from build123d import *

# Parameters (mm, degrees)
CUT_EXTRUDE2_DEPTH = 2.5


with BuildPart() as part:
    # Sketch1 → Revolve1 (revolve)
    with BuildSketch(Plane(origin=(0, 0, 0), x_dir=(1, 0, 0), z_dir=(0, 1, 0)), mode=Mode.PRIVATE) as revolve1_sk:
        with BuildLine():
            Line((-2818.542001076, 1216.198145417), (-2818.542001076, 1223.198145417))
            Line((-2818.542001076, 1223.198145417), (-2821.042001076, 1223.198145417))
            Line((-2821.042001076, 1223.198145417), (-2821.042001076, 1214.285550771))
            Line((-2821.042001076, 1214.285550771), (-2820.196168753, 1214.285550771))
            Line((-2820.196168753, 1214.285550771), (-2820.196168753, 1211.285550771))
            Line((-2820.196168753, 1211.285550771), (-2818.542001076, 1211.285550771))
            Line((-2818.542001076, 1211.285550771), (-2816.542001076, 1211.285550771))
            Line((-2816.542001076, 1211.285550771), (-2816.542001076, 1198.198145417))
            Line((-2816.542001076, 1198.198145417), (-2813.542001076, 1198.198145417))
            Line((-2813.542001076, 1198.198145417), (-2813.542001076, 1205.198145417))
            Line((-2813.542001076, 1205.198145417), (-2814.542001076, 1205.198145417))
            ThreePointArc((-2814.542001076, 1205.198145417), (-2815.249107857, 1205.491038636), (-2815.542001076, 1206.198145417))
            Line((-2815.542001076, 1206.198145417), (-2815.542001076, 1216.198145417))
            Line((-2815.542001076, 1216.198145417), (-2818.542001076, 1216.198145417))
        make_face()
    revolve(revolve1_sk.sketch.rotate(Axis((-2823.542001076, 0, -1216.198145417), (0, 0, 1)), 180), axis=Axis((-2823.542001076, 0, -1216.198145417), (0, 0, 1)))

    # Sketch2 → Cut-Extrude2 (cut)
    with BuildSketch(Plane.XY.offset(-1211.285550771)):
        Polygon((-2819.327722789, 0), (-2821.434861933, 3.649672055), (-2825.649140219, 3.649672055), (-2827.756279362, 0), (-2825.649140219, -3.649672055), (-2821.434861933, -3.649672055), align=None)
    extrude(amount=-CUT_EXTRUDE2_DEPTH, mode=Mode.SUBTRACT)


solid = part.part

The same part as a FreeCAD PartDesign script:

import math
import FreeCAD as App
import Part
import Sketcher
Q = App.Units.Quantity

doc = App.newDocument("Part")
params = doc.addObject("Spreadsheet::Sheet", "Params")
for row, (alias, value) in enumerate([
    ("sketch1_radius", "1 mm"),
    ("sketch1_width", "3 mm"),
    ("sketch1_width2", "1 mm"),
    ("sketch1_height", "7 mm"),
    ("sketch1_height2", "10 mm"),
    ("revolution_angle", "360 deg"),
    ("pocket1_length", "2.5 mm"),
], start=1):
    params.set(f"A{row}", alias)
    params.set(f"B{row}", "=" + value)
    params.setAlias(f"B{row}", alias)

body = doc.addObject("PartDesign::Body", "Body")

sketch1 = doc.addObject("Sketcher::SketchObject", "Sketch")
body.addObject(sketch1)
sketch1.AttachmentSupport = (doc.XZ_Plane, [""])
sketch1.MapMode = "FlatFace"
sketch1.addGeometry([
    Part.LineSegment(App.Vector(-2818.5, -1216.2, 0), App.Vector(-2818.5, -1223.2, 0)),
    Part.LineSegment(App.Vector(-2818.5, -1223.2, 0), App.Vector(-2821, -1223.2, 0)),
    Part.LineSegment(App.Vector(-2821, -1223.2, 0), App.Vector(-2821, -1214.3, 0)),
    Part.LineSegment(App.Vector(-2821, -1214.3, 0), App.Vector(-2820.2, -1214.3, 0)),
    Part.LineSegment(App.Vector(-2820.2, -1214.3, 0), App.Vector(-2820.2, -1211.3, 0)),
    Part.LineSegment(App.Vector(-2820.2, -1211.3, 0), App.Vector(-2816.5, -1211.3, 0)),
    Part.LineSegment(App.Vector(-2816.5, -1211.3, 0), App.Vector(-2816.5, -1198.2, 0)),
    Part.LineSegment(App.Vector(-2816.5, -1198.2, 0), App.Vector(-2813.5, -1198.2, 0)),
    Part.LineSegment(App.Vector(-2813.5, -1198.2, 0), App.Vector(-2813.5, -1205.2, 0)),
    Part.LineSegment(App.Vector(-2813.5, -1205.2, 0), App.Vector(-2814.5, -1205.2, 0)),
    Part.ArcOfCircle(Part.Circle(App.Vector(-2814.5, -1206.2, 0), App.Vector(0, 0, 1), 1), math.radians(90), math.radians(180)),
    Part.LineSegment(App.Vector(-2815.5, -1206.2, 0), App.Vector(-2815.5, -1216.2, 0)),
    Part.LineSegment(App.Vector(-2815.5, -1216.2, 0), App.Vector(-2818.5, -1216.2, 0)),
], False)
sketch1.addGeometry(Part.LineSegment(App.Vector(-2823.5, -1223.2, 0), App.Vector(-2823.5, -1198.2, 0)), True)
sketch1.addConstraint([
    Sketcher.Constraint("Coincident", 0, 2, 1, 1),
    Sketcher.Constraint("Coincident", 1, 2, 2, 1),
    Sketcher.Constraint("Coincident", 2, 2, 3, 1),
    Sketcher.Constraint("Coincident", 3, 2, 4, 1),
    Sketcher.Constraint("Coincident", 4, 2, 5, 1),
    Sketcher.Constraint("Coincident", 5, 2, 6, 1),
    Sketcher.Constraint("Coincident", 6, 2, 7, 1),
    Sketcher.Constraint("Coincident", 7, 2, 8, 1),
    Sketcher.Constraint("Coincident", 8, 2, 9, 1),
    Sketcher.Constraint("Tangent", 9, 2, 10, 1),
    Sketcher.Constraint("Tangent", 10, 2, 11, 1),
    Sketcher.Constraint("Coincident", 11, 2, 12, 1),
    Sketcher.Constraint("Coincident", 12, 2, 0, 1),
    Sketcher.Constraint("Vertical", 0),
    Sketcher.Constraint("Horizontal", 1),
    Sketcher.Constraint("Vertical", 2),
    Sketcher.Constraint("Horizontal", 3),
    Sketcher.Constraint("Vertical", 4),
    Sketcher.Constraint("Horizontal", 5),
    Sketcher.Constraint("Vertical", 6),
    Sketcher.Constraint("Horizontal", 7),
    Sketcher.Constraint("Vertical", 8),
    Sketcher.Constraint("Horizontal", 9),
    Sketcher.Constraint("Vertical", 11),
    Sketcher.Constraint("Horizontal", 12),
    Sketcher.Constraint("Vertical", 13),
    Sketcher.Constraint("Horizontal", 1, 2, 13, 1),
    Sketcher.Constraint("Horizontal", 7, 2, 13, 2),
    Sketcher.Constraint("Equal", 7, 12),
    Sketcher.Constraint("Equal", 12, 4),
    Sketcher.Constraint("Equal", 0, 8),
    Sketcher.Constraint("Radius", 10, 1.0),
    Sketcher.Constraint("DistanceX", 7, 1, 7, 2, 3.0),
    Sketcher.Constraint("DistanceX", 9, 2, 9, 1, 1.0),
    Sketcher.Constraint("DistanceY", 0, 2, 0, 1, 7.0),
    Sketcher.Constraint("DistanceY", 11, 2, 11, 1, 10.0),
    Sketcher.Constraint("DistanceX", 1, 2, 1, 1, 2.5),
    Sketcher.Constraint("DistanceX", 13, 1, 0, 2, 5.0),
    Sketcher.Constraint("DistanceX", 10, 3, -1, 1, 2814.542001),
    Sketcher.Constraint("DistanceX", 3, 1, 3, 2, 0.845832),
    Sketcher.Constraint("DistanceY", 2, 1, 2, 2, 8.912595),
    Sketcher.Constraint("DistanceY", 2, 2, -1, 1, 1214.285551),
])
sketch1.setExpression("Constraints[31]", "Params.sketch1_radius")
sketch1.setExpression("Constraints[32]", "Params.sketch1_width")
sketch1.setExpression("Constraints[33]", "Params.sketch1_width2")
sketch1.setExpression("Constraints[34]", "Params.sketch1_height")
sketch1.setExpression("Constraints[35]", "Params.sketch1_height2")
revolution = doc.addObject("PartDesign::Revolution", "Revolution")
body.addObject(revolution)
revolution.Profile = sketch1
revolution.ReferenceAxis = (sketch1, ["Axis0"])
revolution.setExpression("Angle", "Params.revolution_angle")

sketch2 = doc.addObject("Sketcher::SketchObject", "Sketch001")
body.addObject(sketch2)
sketch2.AttachmentSupport = (doc.XY_Plane, [""])
sketch2.MapMode = "FlatFace"
sketch2.AttachmentOffset = App.Placement(App.Vector(0, 0, -1211.285551), App.Rotation())
sketch2.addGeometry([
    Part.LineSegment(App.Vector(-2819.3, 0, 0), App.Vector(-2821.4, 3.6, 0)),
    Part.LineSegment(App.Vector(-2821.4, 3.6, 0), App.Vector(-2825.6, 3.6, 0)),
    Part.LineSegment(App.Vector(-2825.6, 3.6, 0), App.Vector(-2827.8, 0, 0)),
    Part.LineSegment(App.Vector(-2827.8, 0, 0), App.Vector(-2825.6, -3.6, 0)),
    Part.LineSegment(App.Vector(-2825.6, -3.6, 0), App.Vector(-2821.4, -3.6, 0)),
    Part.LineSegment(App.Vector(-2821.4, -3.6, 0), App.Vector(-2819.3, 0, 0)),
], False)
sketch2.addConstraint([
    Sketcher.Constraint("Coincident", 0, 2, 1, 1),
    Sketcher.Constraint("Coincident", 1, 2, 2, 1),
    Sketcher.Constraint("Coincident", 2, 2, 3, 1),
    Sketcher.Constraint("Coincident", 3, 2, 4, 1),
    Sketcher.Constraint("Coincident", 4, 2, 5, 1),
    Sketcher.Constraint("Coincident", 5, 2, 0, 1),
    Sketcher.Constraint("Horizontal", 1),
    Sketcher.Constraint("Horizontal", 4),
    Sketcher.Constraint("Symmetric", 1, 2, 3, 2, -1),
    Sketcher.Constraint("PointOnObject", 2, 2, -1),
    Sketcher.Constraint("PointOnObject", 5, 2, -1),
    Sketcher.Constraint("Parallel", 0, 3),
    Sketcher.Constraint("Parallel", 2, 5),
    Sketcher.Constraint("Angle", 0, Q("120 deg")),
    Sketcher.Constraint("DistanceX", 1, 2, 1, 1, 4.214278),
    Sketcher.Constraint("Distance", 0, 4.214278),
    Sketcher.Constraint("DistanceX", 0, 2, -1, 1, 2821.434862),
])
pocket1 = doc.addObject("PartDesign::Pocket", "Pocket")
body.addObject(pocket1)
pocket1.Profile = sketch2
pocket1.setExpression("Length", "Params.pocket1_length")

doc.recompute()
